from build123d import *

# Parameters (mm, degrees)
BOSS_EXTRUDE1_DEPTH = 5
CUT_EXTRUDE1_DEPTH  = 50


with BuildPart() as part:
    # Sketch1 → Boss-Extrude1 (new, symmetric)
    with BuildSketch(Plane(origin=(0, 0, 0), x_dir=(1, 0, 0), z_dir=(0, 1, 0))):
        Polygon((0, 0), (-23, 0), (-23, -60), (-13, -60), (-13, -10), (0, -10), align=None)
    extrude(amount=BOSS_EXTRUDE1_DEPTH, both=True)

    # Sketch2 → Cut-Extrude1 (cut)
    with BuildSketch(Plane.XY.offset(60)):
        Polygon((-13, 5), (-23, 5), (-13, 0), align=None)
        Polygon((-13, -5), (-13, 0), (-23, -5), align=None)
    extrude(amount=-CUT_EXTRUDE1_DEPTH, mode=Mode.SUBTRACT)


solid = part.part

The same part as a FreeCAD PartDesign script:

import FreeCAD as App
import Part
import Sketcher


def add_polygon(sketch, points):
    """Adds a closed chain of lines whose ends are joined by coincident constraints."""
    first, n = sketch.GeometryCount, len(points)
    for a, b in zip(points, points[1:] + points[:1]):
        sketch.addGeometry(Part.LineSegment(App.Vector(*a, 0), App.Vector(*b, 0)), False)
    for i in range(n):
        sketch.addConstraint(Sketcher.Constraint("Coincident", first + i, 2, first + (i + 1) % n, 1))

doc = App.newDocument("Part")
params = doc.addObject("Spreadsheet::Sheet", "Params")
for row, (alias, value) in enumerate([
    ("sketch1_width", "23 mm"),
    ("sketch1_width2", "10 mm"),
    ("sketch1_height", "60 mm"),
    ("pad1_length", "10 mm"),
    ("sketch2_width", "10 mm"),
    ("sketch2_height", "5 mm"),
    ("pocket1_length", "50 mm"),
], start=1):
    params.set(f"A{row}", alias)
    params.set(f"B{row}", "=" + value)
    params.setAlias(f"B{row}", alias)

body = doc.addObject("PartDesign::Body", "Body")

# Sketch on XZ plane
sketch1 = body.newObject("Sketcher::SketchObject", "Sketch")
sketch1.AttachmentSupport = (doc.getObject("XZ_Plane"), [""])
sketch1.MapMode = "FlatFace"
add_polygon(sketch1, [(0, 0), (-23, 0), (-23, 60), (-13, 60), (-13, 10), (0, 10)])  # lines 0-5
sketch1.addConstraint(Sketcher.Constraint("Horizontal", 0))
sketch1.addConstraint(Sketcher.Constraint("Vertical", 1))
sketch1.addConstraint(Sketcher.Constraint("Horizontal", 2))
sketch1.addConstraint(Sketcher.Constraint("Vertical", 3))
sketch1.addConstraint(Sketcher.Constraint("Horizontal", 4))
sketch1.addConstraint(Sketcher.Constraint("Vertical", 5))
sketch1.addConstraint(Sketcher.Constraint("Coincident", 5, 2, -1, 1))
sketch1.addConstraint(Sketcher.Constraint("Equal", 2, 5))
sketch1.addConstraint(Sketcher.Constraint("DistanceX", 0, 2, 0, 1, 23.0))
sketch1.addConstraint(Sketcher.Constraint("DistanceX", 2, 1, 2, 2, 10.0))
sketch1.addConstraint(Sketcher.Constraint("DistanceY", 1, 1, 1, 2, 60.0))
sketch1.setExpression("Constraints[14]", "Params.sketch1_width")
sketch1.setExpression("Constraints[15]", "Params.sketch1_width2")
sketch1.setExpression("Constraints[16]", "Params.sketch1_height")
pad1 = body.newObject("PartDesign::Pad", "Pad")
pad1.Profile = sketch1
pad1.setExpression("Length", "Params.pad1_length")
pad1.Midplane = True

# Sketch on XY plane
sketch2 = body.newObject("Sketcher::SketchObject", "Sketch001")
sketch2.AttachmentSupport = (doc.getObject("XY_Plane"), [""])
sketch2.MapMode = "FlatFace"
sketch2.AttachmentOffset = App.Placement(App.Vector(0, 0, 60), App.Rotation())
add_polygon(sketch2, [(-13, 5), (-23, 5), (-13, 0)])  # lines 0-2
add_polygon(sketch2, [(-13, -5), (-13, 0), (-23, -5)])  # lines 3-5
sketch2.addConstraint(Sketcher.Constraint("Horizontal", 0))
sketch2.addConstraint(Sketcher.Constraint("Vertical", 2))
sketch2.addConstraint(Sketcher.Constraint("Vertical", 3))
sketch2.addConstraint(Sketcher.Constraint("Horizontal", 5))
sketch2.addConstraint(Sketcher.Constraint("Coincident", 3, 2, 1, 2))
sketch2.addConstraint(Sketcher.Constraint("Symmetric", 0, 2, 4, 2, -1))
sketch2.addConstraint(Sketcher.Constraint("PointOnObject", 1, 2, -1))
sketch2.addConstraint(Sketcher.Constraint("DistanceX", 0, 2, 0, 1, 10.0))
sketch2.addConstraint(Sketcher.Constraint("DistanceY", 2, 1, 2, 2, 5.0))
sketch2.addConstraint(Sketcher.Constraint("DistanceX", 0, 2, -1, 1, 23.0))
sketch2.setExpression("Constraints[13]", "Params.sketch2_width")
sketch2.setExpression("Constraints[14]", "Params.sketch2_height")
pocket1 = body.newObject("PartDesign::Pocket", "Pocket")
pocket1.Profile = sketch2
pocket1.setExpression("Length", "Params.pocket1_length")

doc.recompute()
